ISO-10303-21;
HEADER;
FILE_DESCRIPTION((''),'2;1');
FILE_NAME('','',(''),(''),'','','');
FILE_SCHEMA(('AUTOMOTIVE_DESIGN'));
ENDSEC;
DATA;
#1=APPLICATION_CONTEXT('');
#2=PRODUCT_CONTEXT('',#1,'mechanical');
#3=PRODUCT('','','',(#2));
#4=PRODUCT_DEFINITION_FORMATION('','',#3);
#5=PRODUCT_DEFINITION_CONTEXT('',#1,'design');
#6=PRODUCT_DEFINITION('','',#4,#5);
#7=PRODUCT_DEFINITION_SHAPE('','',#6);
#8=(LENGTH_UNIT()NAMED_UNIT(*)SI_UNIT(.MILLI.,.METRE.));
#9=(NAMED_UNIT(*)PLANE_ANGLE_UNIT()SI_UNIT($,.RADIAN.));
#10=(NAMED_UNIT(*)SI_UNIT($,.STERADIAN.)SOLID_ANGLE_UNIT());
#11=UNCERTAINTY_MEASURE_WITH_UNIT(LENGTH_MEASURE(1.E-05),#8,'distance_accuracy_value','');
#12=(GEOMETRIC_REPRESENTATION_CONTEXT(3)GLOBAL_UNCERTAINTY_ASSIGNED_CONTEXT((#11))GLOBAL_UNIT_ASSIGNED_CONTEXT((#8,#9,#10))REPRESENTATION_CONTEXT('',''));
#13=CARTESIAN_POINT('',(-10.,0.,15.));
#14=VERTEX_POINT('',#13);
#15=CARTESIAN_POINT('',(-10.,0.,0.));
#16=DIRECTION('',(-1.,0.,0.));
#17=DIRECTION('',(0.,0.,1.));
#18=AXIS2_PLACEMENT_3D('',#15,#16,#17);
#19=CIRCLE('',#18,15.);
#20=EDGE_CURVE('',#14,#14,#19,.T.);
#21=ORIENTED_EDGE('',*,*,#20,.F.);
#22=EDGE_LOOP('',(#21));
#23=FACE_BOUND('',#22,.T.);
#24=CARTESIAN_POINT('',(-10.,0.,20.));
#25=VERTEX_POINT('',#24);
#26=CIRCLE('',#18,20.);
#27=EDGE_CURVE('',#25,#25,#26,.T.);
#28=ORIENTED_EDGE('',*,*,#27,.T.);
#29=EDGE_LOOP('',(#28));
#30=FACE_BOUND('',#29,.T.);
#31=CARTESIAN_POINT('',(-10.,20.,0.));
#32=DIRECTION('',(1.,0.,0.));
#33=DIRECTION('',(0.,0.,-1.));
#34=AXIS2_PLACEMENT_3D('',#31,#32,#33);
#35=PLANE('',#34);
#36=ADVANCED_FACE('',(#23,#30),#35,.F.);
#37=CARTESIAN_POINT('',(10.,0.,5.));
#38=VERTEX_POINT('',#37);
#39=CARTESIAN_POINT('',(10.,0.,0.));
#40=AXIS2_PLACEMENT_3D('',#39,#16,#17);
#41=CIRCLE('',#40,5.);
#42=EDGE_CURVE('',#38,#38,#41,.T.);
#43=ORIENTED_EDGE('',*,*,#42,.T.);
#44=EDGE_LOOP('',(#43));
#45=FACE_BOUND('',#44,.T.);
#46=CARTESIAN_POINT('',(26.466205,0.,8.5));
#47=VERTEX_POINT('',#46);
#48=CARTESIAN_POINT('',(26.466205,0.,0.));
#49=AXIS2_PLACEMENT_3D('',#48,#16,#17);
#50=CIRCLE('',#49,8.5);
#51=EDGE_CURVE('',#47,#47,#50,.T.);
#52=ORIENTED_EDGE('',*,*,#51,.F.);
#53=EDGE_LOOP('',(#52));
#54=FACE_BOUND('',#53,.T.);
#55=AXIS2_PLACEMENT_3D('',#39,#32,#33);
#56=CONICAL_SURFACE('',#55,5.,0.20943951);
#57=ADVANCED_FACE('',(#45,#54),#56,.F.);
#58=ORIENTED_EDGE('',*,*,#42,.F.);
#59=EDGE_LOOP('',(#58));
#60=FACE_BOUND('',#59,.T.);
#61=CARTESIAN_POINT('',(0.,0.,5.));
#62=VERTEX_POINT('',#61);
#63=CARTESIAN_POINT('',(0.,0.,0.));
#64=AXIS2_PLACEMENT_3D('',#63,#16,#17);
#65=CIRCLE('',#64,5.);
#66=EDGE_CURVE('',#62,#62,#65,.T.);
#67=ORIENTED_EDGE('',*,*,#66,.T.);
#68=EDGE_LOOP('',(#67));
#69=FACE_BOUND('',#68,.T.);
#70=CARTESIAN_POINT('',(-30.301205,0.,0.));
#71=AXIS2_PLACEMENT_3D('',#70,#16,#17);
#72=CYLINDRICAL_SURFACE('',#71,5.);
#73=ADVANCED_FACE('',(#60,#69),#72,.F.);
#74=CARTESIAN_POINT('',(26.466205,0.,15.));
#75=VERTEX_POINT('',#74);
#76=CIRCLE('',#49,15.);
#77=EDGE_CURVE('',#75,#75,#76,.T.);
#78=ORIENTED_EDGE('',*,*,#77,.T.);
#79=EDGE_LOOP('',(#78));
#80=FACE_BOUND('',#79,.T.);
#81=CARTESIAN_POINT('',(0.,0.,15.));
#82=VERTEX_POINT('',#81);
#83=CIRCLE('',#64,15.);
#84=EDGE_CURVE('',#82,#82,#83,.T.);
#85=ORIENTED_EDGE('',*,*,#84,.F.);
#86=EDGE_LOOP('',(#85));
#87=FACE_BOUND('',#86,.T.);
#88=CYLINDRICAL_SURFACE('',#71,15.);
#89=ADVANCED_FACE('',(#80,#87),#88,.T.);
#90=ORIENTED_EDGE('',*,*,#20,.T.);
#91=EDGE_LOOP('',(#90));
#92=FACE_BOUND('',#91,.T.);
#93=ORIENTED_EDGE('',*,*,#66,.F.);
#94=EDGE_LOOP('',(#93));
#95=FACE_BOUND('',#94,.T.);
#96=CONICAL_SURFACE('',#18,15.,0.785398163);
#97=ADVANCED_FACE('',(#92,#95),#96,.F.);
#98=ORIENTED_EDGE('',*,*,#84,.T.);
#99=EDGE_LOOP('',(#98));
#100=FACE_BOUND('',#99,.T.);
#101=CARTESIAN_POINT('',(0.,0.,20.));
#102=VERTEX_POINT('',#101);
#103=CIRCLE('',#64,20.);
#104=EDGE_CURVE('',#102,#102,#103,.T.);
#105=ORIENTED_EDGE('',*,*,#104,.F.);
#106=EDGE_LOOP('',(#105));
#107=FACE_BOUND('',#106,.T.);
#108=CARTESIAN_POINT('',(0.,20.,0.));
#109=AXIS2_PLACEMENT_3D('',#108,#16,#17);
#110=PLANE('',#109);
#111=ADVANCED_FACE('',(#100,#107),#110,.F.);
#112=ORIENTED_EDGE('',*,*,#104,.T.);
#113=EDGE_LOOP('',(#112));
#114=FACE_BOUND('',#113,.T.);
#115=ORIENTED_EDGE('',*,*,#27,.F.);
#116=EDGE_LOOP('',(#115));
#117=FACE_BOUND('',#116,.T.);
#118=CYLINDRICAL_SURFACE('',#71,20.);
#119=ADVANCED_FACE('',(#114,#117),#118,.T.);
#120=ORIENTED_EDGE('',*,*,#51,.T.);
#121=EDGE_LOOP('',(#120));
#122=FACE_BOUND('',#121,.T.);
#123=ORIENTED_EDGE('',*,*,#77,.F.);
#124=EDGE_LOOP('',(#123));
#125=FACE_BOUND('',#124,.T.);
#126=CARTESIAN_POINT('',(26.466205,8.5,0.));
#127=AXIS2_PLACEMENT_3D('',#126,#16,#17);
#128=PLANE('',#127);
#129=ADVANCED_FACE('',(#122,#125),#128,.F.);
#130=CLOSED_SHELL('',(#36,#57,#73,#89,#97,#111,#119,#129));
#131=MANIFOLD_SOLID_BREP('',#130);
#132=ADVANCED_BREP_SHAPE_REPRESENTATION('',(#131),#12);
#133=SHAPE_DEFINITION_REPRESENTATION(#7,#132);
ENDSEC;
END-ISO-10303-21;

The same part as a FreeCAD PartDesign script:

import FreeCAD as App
import Part
import Sketcher
Q = App.Units.Quantity


def add_polygon(sketch, points):
    """Adds a closed chain of lines whose ends are joined by coincident constraints."""
    first, n = sketch.GeometryCount, len(points)
    for a, b in zip(points, points[1:] + points[:1]):
        sketch.addGeometry(Part.LineSegment(App.Vector(*a, 0), App.Vector(*b, 0)), False)
    for i in range(n):
        sketch.addConstraint(Sketcher.Constraint("Coincident", first + i, 2, first + (i + 1) % n, 1))

doc = App.newDocument("Part")
body = doc.addObject("PartDesign::Body", "Body")

# Sketch on XY plane
sketch1 = body.newObject("Sketcher::SketchObject", "Sketch")
sketch1.AttachmentSupport = (doc.getObject("XY_Plane"), [""])
sketch1.MapMode = "FlatFace"
add_polygon(sketch1, [(0, 20), (-10, 20), (-10, 15), (0, 5), (10, 5), (26, 8), (26, 15), (0, 15)])  # lines 0-7
sketch1.addConstraint(Sketcher.Constraint("Horizontal", 0))
sketch1.addConstraint(Sketcher.Constraint("Vertical", 1))
sketch1.addConstraint(Sketcher.Constraint("Horizontal", 3))
sketch1.addConstraint(Sketcher.Constraint("Vertical", 5))
sketch1.addConstraint(Sketcher.Constraint("Horizontal", 6))
sketch1.addConstraint(Sketcher.Constraint("Vertical", 7))
sketch1.addConstraint(Sketcher.Constraint("PointOnObject", 2, 2, -2))
sketch1.addConstraint(Sketcher.Constraint("PointOnObject", 6, 2, -2))
sketch1.addConstraint(Sketcher.Constraint("Horizontal", 1, 2, 5, 2))
sketch1.addConstraint(Sketcher.Constraint("Equal", 0, 3))
sketch1.addConstraint(Sketcher.Constraint("DistanceX", 0, 2, 0, 1, Q("10 mm")))
sketch1.addConstraint(Sketcher.Constraint("DistanceY", 1, 2, 1, 1, Q("5 mm")))
sketch1.addConstraint(Sketcher.Constraint("Angle", 2, Q("-45 deg")))
sketch1.addConstraint(Sketcher.Constraint("Angle", 4, Q("12 deg")))
sketch1.addConstraint(Sketcher.Constraint("DistanceY", 5, 1, 5, 2, Q("6.5 mm")))
sketch1.addConstraint(Sketcher.Constraint("DistanceY", -1, 1, 0, 2, Q("20 mm")))
revolution = body.newObject("PartDesign::Revolution", "Revolution")
revolution.Profile = sketch1
revolution.ReferenceAxis = (sketch1, ["H_Axis"])
revolution.Angle = 360

doc.recompute()
